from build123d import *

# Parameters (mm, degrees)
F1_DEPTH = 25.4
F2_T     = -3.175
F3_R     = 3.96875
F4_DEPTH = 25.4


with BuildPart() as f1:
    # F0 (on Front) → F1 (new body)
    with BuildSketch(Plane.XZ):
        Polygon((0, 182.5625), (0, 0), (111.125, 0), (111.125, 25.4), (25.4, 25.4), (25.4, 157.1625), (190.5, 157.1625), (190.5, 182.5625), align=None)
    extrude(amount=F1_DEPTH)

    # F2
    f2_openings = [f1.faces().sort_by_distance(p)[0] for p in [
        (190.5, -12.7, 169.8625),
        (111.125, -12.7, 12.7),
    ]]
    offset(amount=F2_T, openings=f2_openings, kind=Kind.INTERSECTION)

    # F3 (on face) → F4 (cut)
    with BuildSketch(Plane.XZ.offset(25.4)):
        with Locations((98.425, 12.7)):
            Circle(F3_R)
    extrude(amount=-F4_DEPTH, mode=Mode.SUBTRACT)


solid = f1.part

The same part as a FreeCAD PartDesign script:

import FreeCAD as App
import Part
import Sketcher

V = App.Vector
Q = App.Units.Quantity


def faces_at(feature, points):
    """Names of the faces that lie closest to the given points."""
    faces = feature.Shape.Faces
    near = lambda p: min(range(len(faces)), key=lambda i: faces[i].distToShape(Part.Vertex(*p))[0])
    return sorted({f"Face{near(p) + 1}" for p in points})

doc = App.newDocument("Part")
body = doc.addObject("PartDesign::Body", "Body")

# Sketch on XZ plane
sketch1 = body.newObject("Sketcher::SketchObject", "Sketch")
sketch1.AttachmentSupport = (doc.getObject("XZ_Plane"), [""])
sketch1.MapMode = "FlatFace"
sketch1.addGeometry([
    Part.LineSegment(V(0, 183, 0), V(0, 0, 0)),  # 0
    Part.LineSegment(V(0, 0, 0), V(111, 0, 0)),  # 1
    Part.LineSegment(V(111, 0, 0), V(111, 25, 0)),  # 2
    Part.LineSegment(V(111, 25, 0), V(25, 25, 0)),  # 3
    Part.LineSegment(V(25, 25, 0), V(25, 157, 0)),  # 4
    Part.LineSegment(V(25, 157, 0), V(190, 157, 0)),  # 5
    Part.LineSegment(V(190, 157, 0), V(190, 183, 0)),  # 6
    Part.LineSegment(V(190, 183, 0), V(0, 183, 0)),  # 7
], False)
sketch1.addConstraint([
    Sketcher.Constraint("Coincident", 0, 2, 1, 1),
    Sketcher.Constraint("Coincident", 1, 2, 2, 1),
    Sketcher.Constraint("Coincident", 2, 2, 3, 1),
    Sketcher.Constraint("Coincident", 3, 2, 4, 1),
    Sketcher.Constraint("Coincident", 4, 2, 5, 1),
    Sketcher.Constraint("Coincident", 5, 2, 6, 1),
    Sketcher.Constraint("Coincident", 6, 2, 7, 1),
    Sketcher.Constraint("Coincident", 7, 2, 0, 1),
    Sketcher.Constraint("Vertical", 0),
    Sketcher.Constraint("Horizontal", 1),
    Sketcher.Constraint("Vertical", 2),
    Sketcher.Constraint("Horizontal", 3),
    Sketcher.Constraint("Vertical", 4),
    Sketcher.Constraint("Horizontal", 5),
    Sketcher.Constraint("Vertical", 6),
    Sketcher.Constraint("Horizontal", 7),
    Sketcher.Constraint("Coincident", 0, 2, -1, 1),
    Sketcher.Constraint("Equal", 2, 6),
    Sketcher.Constraint("DistanceY", 2, 1, 2, 2, Q("1 in")),
    Sketcher.Constraint("DistanceX", 5, 1, 5, 2, Q("6.5 in")),
    Sketcher.Constraint("DistanceX", 7, 2, 7, 1, Q("7.5 in")),
    Sketcher.Constraint("DistanceX", 1, 1, 1, 2, Q("4.375 in")),
    Sketcher.Constraint("DistanceY", 0, 2, 0, 1, Q("7.1875 in")),
])
pad1 = body.newObject("PartDesign::Pad", "Pad")
pad1.Profile = sketch1
pad1.Length = Q("1 in")
doc.recompute()

thickness = body.newObject("PartDesign::Thickness", "Thickness")
thickness.Base = (pad1, faces_at(pad1, [(190.5, -12.7, 169.863), (111.125, -12.7, 12.7)]))
thickness.Value = Q("0.125 in")
thickness.Reversed = True
thickness.Join = "Intersection"

# Sketch on XZ plane
sketch2 = body.newObject("Sketcher::SketchObject", "Sketch001")
sketch2.AttachmentSupport = (doc.getObject("XZ_Plane"), [""])
sketch2.MapMode = "FlatFace"
sketch2.AttachmentOffset = App.Placement(V(0, 0, 1 * 25.4), App.Rotation())
sketch2.addGeometry(Part.Circle(V(98.4, 12.7, 0), V(0, 0, 1), 4), False)
sketch2.addConstraint([
    Sketcher.Constraint("Diameter", 0, Q("0.3125 in")),
    Sketcher.Constraint("DistanceY", -1, 1, 0, 3, Q("0.5 in")),
    Sketcher.Constraint("DistanceX", -1, 1, 0, 3, Q("3.875 in")),
])
pocket1 = body.newObject("PartDesign::Pocket", "Pocket")
pocket1.Profile = sketch2
pocket1.Length = Q("1 in")

doc.recompute()
